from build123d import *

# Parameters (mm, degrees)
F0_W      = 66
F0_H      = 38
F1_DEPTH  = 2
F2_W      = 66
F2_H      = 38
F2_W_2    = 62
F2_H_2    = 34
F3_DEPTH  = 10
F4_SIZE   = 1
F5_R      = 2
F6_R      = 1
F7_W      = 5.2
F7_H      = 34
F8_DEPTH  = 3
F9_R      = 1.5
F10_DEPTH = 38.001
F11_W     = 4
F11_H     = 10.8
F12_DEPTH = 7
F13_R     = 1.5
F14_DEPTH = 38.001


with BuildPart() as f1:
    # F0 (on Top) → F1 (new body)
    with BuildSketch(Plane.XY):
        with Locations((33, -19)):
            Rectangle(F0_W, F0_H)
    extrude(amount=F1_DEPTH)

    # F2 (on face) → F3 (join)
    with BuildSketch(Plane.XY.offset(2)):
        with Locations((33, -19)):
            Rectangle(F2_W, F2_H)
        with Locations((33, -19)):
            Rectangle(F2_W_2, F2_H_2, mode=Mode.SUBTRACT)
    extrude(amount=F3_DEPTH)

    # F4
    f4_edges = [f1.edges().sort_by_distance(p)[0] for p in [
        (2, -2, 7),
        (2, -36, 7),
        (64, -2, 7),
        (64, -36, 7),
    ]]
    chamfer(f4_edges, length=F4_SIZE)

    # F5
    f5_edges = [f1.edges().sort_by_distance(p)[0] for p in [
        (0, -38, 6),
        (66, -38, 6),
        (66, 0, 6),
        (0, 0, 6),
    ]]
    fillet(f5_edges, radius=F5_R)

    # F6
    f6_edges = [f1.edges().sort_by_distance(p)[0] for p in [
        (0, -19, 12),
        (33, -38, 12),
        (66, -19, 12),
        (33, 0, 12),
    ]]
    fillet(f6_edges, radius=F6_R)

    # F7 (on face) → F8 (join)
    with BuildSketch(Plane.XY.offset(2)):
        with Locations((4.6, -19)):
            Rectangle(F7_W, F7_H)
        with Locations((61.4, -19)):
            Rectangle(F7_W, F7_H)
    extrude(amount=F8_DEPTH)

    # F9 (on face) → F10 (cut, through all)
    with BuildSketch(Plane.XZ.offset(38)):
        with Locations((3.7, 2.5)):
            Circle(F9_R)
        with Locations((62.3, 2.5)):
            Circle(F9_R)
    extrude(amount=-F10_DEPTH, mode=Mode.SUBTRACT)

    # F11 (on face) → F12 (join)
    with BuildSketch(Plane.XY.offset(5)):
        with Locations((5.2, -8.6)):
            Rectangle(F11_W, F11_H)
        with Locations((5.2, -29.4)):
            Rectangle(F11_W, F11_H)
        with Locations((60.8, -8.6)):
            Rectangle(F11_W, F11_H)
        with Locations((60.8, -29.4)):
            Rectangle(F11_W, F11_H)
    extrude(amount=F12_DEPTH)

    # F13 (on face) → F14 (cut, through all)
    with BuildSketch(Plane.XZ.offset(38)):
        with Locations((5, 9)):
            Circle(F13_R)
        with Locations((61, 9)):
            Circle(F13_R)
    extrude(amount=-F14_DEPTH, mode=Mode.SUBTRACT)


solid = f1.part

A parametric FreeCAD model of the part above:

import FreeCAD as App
import Part
import Sketcher


def edges_at(feature, points):
    """Names of the edges that pass closest to the given points."""
    edges = feature.Shape.Edges
    near = lambda p: min(range(len(edges)), key=lambda i: edges[i].distToShape(Part.Vertex(*p))[0])
    return sorted({f"Edge{near(p) + 1}" for p in points})

doc = App.newDocument("Part")
body = doc.addObject("PartDesign::Body", "Body")

# Sketch on XY plane
sketch1 = body.newObject("Sketcher::SketchObject", "Sketch")
sketch1.AttachmentSupport = (doc.getObject("XY_Plane"), [""])
sketch1.MapMode = "FlatFace"
sketch1.addGeometry(Part.LineSegment(App.Vector(0, 0, 0), App.Vector(0, -38, 0)), False)
sketch1.addGeometry(Part.LineSegment(App.Vector(0, -38, 0), App.Vector(66, -38, 0)), False)
sketch1.addGeometry(Part.LineSegment(App.Vector(66, -38, 0), App.Vector(66, 0, 0)), False)
sketch1.addGeometry(Part.LineSegment(App.Vector(66, 0, 0), App.Vector(0, 0, 0)), False)
sketch1.addConstraint(Sketcher.Constraint("Coincident", 0, 2, 1, 1))
sketch1.addConstraint(Sketcher.Constraint("Coincident", 1, 2, 2, 1))
sketch1.addConstraint(Sketcher.Constraint("Coincident", 2, 2, 3, 1))
sketch1.addConstraint(Sketcher.Constraint("Coincident", 3, 2, 0, 1))
sketch1.addConstraint(Sketcher.Constraint("Vertical", 0))
sketch1.addConstraint(Sketcher.Constraint("Horizontal", 1))
sketch1.addConstraint(Sketcher.Constraint("Vertical", 2))
sketch1.addConstraint(Sketcher.Constraint("Horizontal", 3))
sketch1.addConstraint(Sketcher.Constraint("Coincident", 3, 2, -1, 1))
sketch1.addConstraint(Sketcher.Constraint("DistanceX", 1, 1, 1, 2, 66.0))
sketch1.addConstraint(Sketcher.Constraint("DistanceY", 0, 2, 0, 1, 38.0))
pad1 = body.newObject("PartDesign::Pad", "Pad")
pad1.Profile = sketch1
pad1.Length = 2

# Sketch on XY plane
sketch2 = body.newObject("Sketcher::SketchObject", "Sketch001")
sketch2.AttachmentSupport = (doc.getObject("XY_Plane"), [""])
sketch2.MapMode = "FlatFace"
sketch2.AttachmentOffset = App.Placement(App.Vector(0, 0, 2), App.Rotation())
sketch2.addGeometry(Part.LineSegment(App.Vector(0, 0, 0), App.Vector(0, -38, 0)), False)
sketch2.addGeometry(Part.LineSegment(App.Vector(0, -38, 0), App.Vector(66, -38, 0)), False)
sketch2.addGeometry(Part.LineSegment(App.Vector(66, -38, 0), App.Vector(66, 0, 0)), False)
sketch2.addGeometry(Part.LineSegment(App.Vector(66, 0, 0), App.Vector(0, 0, 0)), False)
sketch2.addGeometry(Part.LineSegment(App.Vector(64, -36, 0), App.Vector(2, -36, 0)), False)
sketch2.addGeometry(Part.LineSegment(App.Vector(2, -36, 0), App.Vector(2, -2, 0)), False)
sketch2.addGeometry(Part.LineSegment(App.Vector(2, -2, 0), App.Vector(64, -2, 0)), False)
sketch2.addGeometry(Part.LineSegment(App.Vector(64, -2, 0), App.Vector(64, -36, 0)), False)
sketch2.addConstraint(Sketcher.Constraint("Coincident", 0, 2, 1, 1))
sketch2.addConstraint(Sketcher.Constraint("Coincident", 1, 2, 2, 1))
sketch2.addConstraint(Sketcher.Constraint("Coincident", 2, 2, 3, 1))
sketch2.addConstraint(Sketcher.Constraint("Coincident", 3, 2, 0, 1))
sketch2.addConstraint(Sketcher.Constraint("Coincident", 4, 2, 5, 1))
sketch2.addConstraint(Sketcher.Constraint("Coincident", 5, 2, 6, 1))
sketch2.addConstraint(Sketcher.Constraint("Coincident", 6, 2, 7, 1))
sketch2.addConstraint(Sketcher.Constraint("Coincident", 7, 2, 4, 1))
sketch2.addConstraint(Sketcher.Constraint("Vertical", 0))
sketch2.addConstraint(Sketcher.Constraint("Horizontal", 1))
sketch2.addConstraint(Sketcher.Constraint("Vertical", 2))
sketch2.addConstraint(Sketcher.Constraint("Horizontal", 3))
sketch2.addConstraint(Sketcher.Constraint("Horizontal", 4))
sketch2.addConstraint(Sketcher.Constraint("Vertical", 5))
sketch2.addConstraint(Sketcher.Constraint("Horizontal", 6))
sketch2.addConstraint(Sketcher.Constraint("Vertical", 7))
sketch2.addConstraint(Sketcher.Constraint("Coincident", 3, 2, -1, 1))
sketch2.addConstraint(Sketcher.Constraint("DistanceX", 1, 1, 1, 2, 66.0))
sketch2.addConstraint(Sketcher.Constraint("DistanceX", 4, 2, 4, 1, 62.0))
sketch2.addConstraint(Sketcher.Constraint("DistanceY", 0, 2, 0, 1, 38.0))
sketch2.addConstraint(Sketcher.Constraint("DistanceY", 5, 1, 5, 2, 34.0))
sketch2.addConstraint(Sketcher.Constraint("DistanceX", -1, 1, 4, 2, 2.0))
sketch2.addConstraint(Sketcher.Constraint("DistanceY", 4, 2, -1, 1, 36.0))
pad2 = body.newObject("PartDesign::Pad", "Pad001")
pad2.Profile = sketch2
pad2.Length = 10
doc.recompute()

chamfer = body.newObject("PartDesign::Chamfer", "Chamfer")
chamfer.Base = (pad2, edges_at(pad2, [
    (2, -2, 7),
    (2, -36, 7),
    (64, -2, 7),
    (64, -36, 7),
]))
chamfer.Size = 1
doc.recompute()

fillet = body.newObject("PartDesign::Fillet", "Fillet")
fillet.Base = (chamfer, edges_at(chamfer, [
    (0, -38, 6),
    (66, -38, 6),
    (66, 0, 6),
    (0, 0, 6),
]))
fillet.Radius = 2
doc.recompute()

fillet2 = body.newObject("PartDesign::Fillet", "Fillet001")
fillet2.Base = (fillet, edges_at(fillet, [
    (0, -19, 12),
    (33, -38, 12),
    (66, -19, 12),
    (33, 0, 12),
]))
fillet2.Radius = 1

# Sketch on XY plane
sketch3 = body.newObject("Sketcher::SketchObject", "Sketch002")
sketch3.AttachmentSupport = (doc.getObject("XY_Plane"), [""])
sketch3.MapMode = "FlatFace"
sketch3.AttachmentOffset = App.Placement(App.Vector(0, 0, 2), App.Rotation())
sketch3.addGeometry(Part.LineSegment(App.Vector(2, -2, 0), App.Vector(2, -36, 0)), False)
sketch3.addGeometry(Part.LineSegment(App.Vector(2, -36, 0), App.Vector(7, -36, 0)), False)
sketch3.addGeometry(Part.LineSegment(App.Vector(7, -36, 0), App.Vector(7, -2, 0)), False)
sketch3.addGeometry(Part.LineSegment(App.Vector(7, -2, 0), App.Vector(2, -2, 0)), False)
sketch3.addGeometry(Part.LineSegment(App.Vector(59, -2, 0), App.Vector(59, -36, 0)), False)
sketch3.addGeometry(Part.LineSegment(App.Vector(59, -36, 0), App.Vector(64, -36, 0)), False)
sketch3.addGeometry(Part.LineSegment(App.Vector(64, -36, 0), App.Vector(64, -2, 0)), False)
sketch3.addGeometry(Part.LineSegment(App.Vector(64, -2, 0), App.Vector(59, -2, 0)), False)
sketch3.addConstraint(Sketcher.Constraint("Coincident", 0, 2, 1, 1))
sketch3.addConstraint(Sketcher.Constraint("Coincident", 1, 2, 2, 1))
sketch3.addConstraint(Sketcher.Constraint("Coincident", 2, 2, 3, 1))
sketch3.addConstraint(Sketcher.Constraint("Coincident", 3, 2, 0, 1))
sketch3.addConstraint(Sketcher.Constraint("Coincident", 4, 2, 5, 1))
sketch3.addConstraint(Sketcher.Constraint("Coincident", 5, 2, 6, 1))
sketch3.addConstraint(Sketcher.Constraint("Coincident", 6, 2, 7, 1))
sketch3.addConstraint(Sketcher.Constraint("Coincident", 7, 2, 4, 1))
sketch3.addConstraint(Sketcher.Constraint("Vertical", 0))
sketch3.addConstraint(Sketcher.Constraint("Horizontal", 1))
sketch3.addConstraint(Sketcher.Constraint("Vertical", 2))
sketch3.addConstraint(Sketcher.Constraint("Horizontal", 3))
sketch3.addConstraint(Sketcher.Constraint("Vertical", 4))
sketch3.addConstraint(Sketcher.Constraint("Horizontal", 5))
sketch3.addConstraint(Sketcher.Constraint("Vertical", 6))
sketch3.addConstraint(Sketcher.Constraint("Horizontal", 7))
sketch3.addConstraint(Sketcher.Constraint("Horizontal", 1, 2, 4, 2))
sketch3.addConstraint(Sketcher.Constraint("Horizontal", 3, 2, 6, 2))
sketch3.addConstraint(Sketcher.Constraint("Equal", 3, 5))
sketch3.addConstraint(Sketcher.Constraint("DistanceY", 0, 2, 0, 1, 34.0))
sketch3.addConstraint(Sketcher.Constraint("DistanceX", 1, 1, 1, 2, 5.2))
sketch3.addConstraint(Sketcher.Constraint("DistanceX", -1, 1, 0, 2, 2.0))
sketch3.addConstraint(Sketcher.Constraint("DistanceY", 0, 2, -1, 1, 36.0))
sketch3.addConstraint(Sketcher.Constraint("DistanceX", -1, 1, 5, 2, 64.0))
pad3 = body.newObject("PartDesign::Pad", "Pad002")
pad3.Profile = sketch3
pad3.Length = 3

# Sketch on XZ plane
sketch4 = body.newObject("Sketcher::SketchObject", "Sketch003")
sketch4.AttachmentSupport = (doc.getObject("XZ_Plane"), [""])
sketch4.MapMode = "FlatFace"
sketch4.AttachmentOffset = App.Placement(App.Vector(0, 0, 38), App.Rotation())
sketch4.addGeometry(Part.Circle(App.Vector(3.7, 2.5, 0), App.Vector(0, 0, 1), 1.5), False)
sketch4.addGeometry(Part.Circle(App.Vector(62.3, 2.5, 0), App.Vector(0, 0, 1), 1.5), False)
sketch4.addConstraint(Sketcher.Constraint("Equal", 0, 1))
sketch4.addConstraint(Sketcher.Constraint("Horizontal", 0, 3, 1, 3))
sketch4.addConstraint(Sketcher.Constraint("Diameter", 0, 3.0))
sketch4.addConstraint(Sketcher.Constraint("DistanceX", -1, 1, 0, 3, 3.7))
sketch4.addConstraint(Sketcher.Constraint("DistanceY", -1, 1, 0, 3, 2.5))
sketch4.addConstraint(Sketcher.Constraint("DistanceX", -1, 1, 1, 3, 62.3))
pocket1 = body.newObject("PartDesign::Pocket", "Pocket")
pocket1.Profile = sketch4
pocket1.Type = "ThroughAll"

# Sketch on XY plane
sketch5 = body.newObject("Sketcher::SketchObject", "Sketch004")
sketch5.AttachmentSupport = (doc.getObject("XY_Plane"), [""])
sketch5.MapMode = "FlatFace"
sketch5.AttachmentOffset = App.Placement(App.Vector(0, 0, 5), App.Rotation())
sketch5.addGeometry(Part.LineSegment(App.Vector(3.2, -3.2, 0), App.Vector(3.2, -14, 0)), False)
sketch5.addGeometry(Part.LineSegment(App.Vector(3.2, -14, 0), App.Vector(7.2, -14, 0)), False)
sketch5.addGeometry(Part.LineSegment(App.Vector(7.2, -14, 0), App.Vector(7.2, -3.2, 0)), False)
sketch5.addGeometry(Part.LineSegment(App.Vector(7.2, -3.2, 0), App.Vector(3.2, -3.2, 0)), False)
sketch5.addGeometry(Part.LineSegment(App.Vector(3.2, -24, 0), App.Vector(3.2, -34.8, 0)), False)
sketch5.addGeometry(Part.LineSegment(App.Vector(3.2, -34.8, 0), App.Vector(7.2, -34.8, 0)), False)
sketch5.addGeometry(Part.LineSegment(App.Vector(7.2, -34.8, 0), App.Vector(7.2, -24, 0)), False)
sketch5.addGeometry(Part.LineSegment(App.Vector(7.2, -24, 0), App.Vector(3.2, -24, 0)), False)
sketch5.addGeometry(Part.LineSegment(App.Vector(58.8, -3.2, 0), App.Vector(58.8, -14, 0)), False)
sketch5.addGeometry(Part.LineSegment(App.Vector(58.8, -14, 0), App.Vector(62.8, -14, 0)), False)
sketch5.addGeometry(Part.LineSegment(App.Vector(62.8, -14, 0), App.Vector(62.8, -3.2, 0)), False)
sketch5.addGeometry(Part.LineSegment(App.Vector(62.8, -3.2, 0), App.Vector(58.8, -3.2, 0)), False)
sketch5.addGeometry(Part.LineSegment(App.Vector(58.8, -24, 0), App.Vector(58.8, -34.8, 0)), False)
sketch5.addGeometry(Part.LineSegment(App.Vector(58.8, -34.8, 0), App.Vector(62.8, -34.8, 0)), False)
sketch5.addGeometry(Part.LineSegment(App.Vector(62.8, -34.8, 0), App.Vector(62.8, -24, 0)), False)
sketch5.addGeometry(Part.LineSegment(App.Vector(62.8, -24, 0), App.Vector(58.8, -24, 0)), False)
sketch5.addConstraint(Sketcher.Constraint("Coincident", 0, 2, 1, 1))
sketch5.addConstraint(Sketcher.Constraint("Coincident", 1, 2, 2, 1))
sketch5.addConstraint(Sketcher.Constraint("Coincident", 2, 2, 3, 1))
sketch5.addConstraint(Sketcher.Constraint("Coincident", 3, 2, 0, 1))
sketch5.addConstraint(Sketcher.Constraint("Coincident", 4, 2, 5, 1))
sketch5.addConstraint(Sketcher.Constraint("Coincident", 5, 2, 6, 1))
sketch5.addConstraint(Sketcher.Constraint("Coincident", 6, 2, 7, 1))
sketch5.addConstraint(Sketcher.Constraint("Coincident", 7, 2, 4, 1))
sketch5.addConstraint(Sketcher.Constraint("Coincident", 8, 2, 9, 1))
sketch5.addConstraint(Sketcher.Constraint("Coincident", 9, 2, 10, 1))
sketch5.addConstraint(Sketcher.Constraint("Coincident", 10, 2, 11, 1))
sketch5.addConstraint(Sketcher.Constraint("Coincident", 11, 2, 8, 1))
sketch5.addConstraint(Sketcher.Constraint("Coincident", 12, 2, 13, 1))
sketch5.addConstraint(Sketcher.Constraint("Coincident", 13, 2, 14, 1))
sketch5.addConstraint(Sketcher.Constraint("Coincident", 14, 2, 15, 1))
sketch5.addConstraint(Sketcher.Constraint("Coincident", 15, 2, 12, 1))
sketch5.addConstraint(Sketcher.Constraint("Vertical", 0))
sketch5.addConstraint(Sketcher.Constraint("Horizontal", 1))
sketch5.addConstraint(Sketcher.Constraint("Vertical", 2))
sketch5.addConstraint(Sketcher.Constraint("Horizontal", 3))
sketch5.addConstraint(Sketcher.Constraint("Vertical", 4))
sketch5.addConstraint(Sketcher.Constraint("Horizontal", 5))
sketch5.addConstraint(Sketcher.Constraint("Vertical", 6))
sketch5.addConstraint(Sketcher.Constraint("Horizontal", 7))
sketch5.addConstraint(Sketcher.Constraint("Vertical", 8))
sketch5.addConstraint(Sketcher.Constraint("Horizontal", 9))
sketch5.addConstraint(Sketcher.Constraint("Vertical", 10))
sketch5.addConstraint(Sketcher.Constraint("Horizontal", 11))
sketch5.addConstraint(Sketcher.Constraint("Vertical", 12))
sketch5.addConstraint(Sketcher.Constraint("Horizontal", 13))
sketch5.addConstraint(Sketcher.Constraint("Vertical", 14))
sketch5.addConstraint(Sketcher.Constraint("Horizontal", 15))
sketch5.addConstraint(Sketcher.Constraint("Horizontal", 1, 2, 8, 2))
sketch5.addConstraint(Sketcher.Constraint("Horizontal", 3, 2, 10, 2))
sketch5.addConstraint(Sketcher.Constraint("Horizontal", 5, 2, 12, 2))
sketch5.addConstraint(Sketcher.Constraint("Horizontal", 7, 2, 14, 2))
sketch5.addConstraint(Sketcher.Constraint("Vertical", 3, 2, 4, 2))
sketch5.addConstraint(Sketcher.Constraint("Vertical", 2, 2, 5, 2))
sketch5.addConstraint(Sketcher.Constraint("Vertical", 11, 2, 12, 2))
sketch5.addConstraint(Sketcher.Constraint("Vertical", 10, 2, 13, 2))
sketch5.addConstraint(Sketcher.Constraint("Equal", 7, 9))
sketch5.addConstraint(Sketcher.Constraint("Equal", 2, 4))
sketch5.addConstraint(Sketcher.Constraint("DistanceX", 1, 1, 1, 2, 4.0))
sketch5.addConstraint(Sketcher.Constraint("DistanceY", 0, 2, 0, 1, 10.8))
sketch5.addConstraint(Sketcher.Constraint("DistanceY", 0, 2, -1, 1, 14.0))
sketch5.addConstraint(Sketcher.Constraint("DistanceY", 6, 2, -1, 1, 24.0))
sketch5.addConstraint(Sketcher.Constraint("DistanceX", -1, 1, 0, 2, 3.2))
sketch5.addConstraint(Sketcher.Constraint("DistanceX", -1, 1, 8, 2, 58.8))
pad4 = body.newObject("PartDesign::Pad", "Pad003")
pad4.Profile = sketch5
pad4.Length = 7

# Sketch on XZ plane
sketch6 = body.newObject("Sketcher::SketchObject", "Sketch005")
sketch6.AttachmentSupport = (doc.getObject("XZ_Plane"), [""])
sketch6.MapMode = "FlatFace"
sketch6.AttachmentOffset = App.Placement(App.Vector(0, 0, 38), App.Rotation())
sketch6.addGeometry(Part.Circle(App.Vector(5, 9, 0), App.Vector(0, 0, 1), 1.5), False)
sketch6.addGeometry(Part.Circle(App.Vector(61, 9, 0), App.Vector(0, 0, 1), 1.5), False)
sketch6.addConstraint(Sketcher.Constraint("Equal", 0, 1))
sketch6.addConstraint(Sketcher.Constraint("Horizontal", 0, 3, 1, 3))
sketch6.addConstraint(Sketcher.Constraint("Diameter", 0, 3.0))
sketch6.addConstraint(Sketcher.Constraint("DistanceX", -1, 1, 0, 3, 5.0))
sketch6.addConstraint(Sketcher.Constraint("DistanceY", -1, 1, 0, 3, 9.0))
sketch6.addConstraint(Sketcher.Constraint("DistanceX", -1, 1, 1, 3, 61.0))
pocket2 = body.newObject("PartDesign::Pocket", "Pocket001")
pocket2.Profile = sketch6
pocket2.Type = "ThroughAll"

doc.recompute()
